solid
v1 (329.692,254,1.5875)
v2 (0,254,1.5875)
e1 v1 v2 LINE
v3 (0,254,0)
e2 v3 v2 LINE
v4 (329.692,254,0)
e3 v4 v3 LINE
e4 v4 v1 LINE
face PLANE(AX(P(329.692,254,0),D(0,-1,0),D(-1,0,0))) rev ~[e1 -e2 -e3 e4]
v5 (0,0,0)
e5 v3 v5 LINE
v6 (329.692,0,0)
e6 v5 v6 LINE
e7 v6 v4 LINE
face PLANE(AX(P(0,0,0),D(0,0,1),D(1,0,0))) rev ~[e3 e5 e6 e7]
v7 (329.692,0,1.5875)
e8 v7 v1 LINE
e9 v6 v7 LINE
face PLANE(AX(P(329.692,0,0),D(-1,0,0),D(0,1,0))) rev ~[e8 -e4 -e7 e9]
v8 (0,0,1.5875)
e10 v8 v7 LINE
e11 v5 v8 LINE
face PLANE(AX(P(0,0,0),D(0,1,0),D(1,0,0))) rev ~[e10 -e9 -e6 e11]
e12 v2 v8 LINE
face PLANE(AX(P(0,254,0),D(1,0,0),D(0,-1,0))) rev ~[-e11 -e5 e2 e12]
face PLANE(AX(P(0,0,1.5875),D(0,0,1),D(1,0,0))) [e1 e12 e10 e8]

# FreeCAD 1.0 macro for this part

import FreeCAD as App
import Part
import Sketcher
from FreeCAD import Vector
Q = App.Units.Quantity


def add_polygon(sketch, points):
    """Adds a closed chain of lines whose ends are joined by coincident constraints."""
    first, n = sketch.GeometryCount, len(points)
    for a, b in zip(points, points[1:] + points[:1]):
        sketch.addGeometry(Part.LineSegment(App.Vector(*a, 0), App.Vector(*b, 0)), False)
    for i in range(n):
        sketch.addConstraint(Sketcher.Constraint("Coincident", first + i, 2, first + (i + 1) % n, 1))

doc = App.newDocument("Part")
body = doc.addObject("PartDesign::Body", "Body")

# Sketch on XY plane
sketch1 = doc.addObject("Sketcher::SketchObject", "Sketch")
body.addObject(sketch1)
sketch1.AttachmentSupport = (doc.XY_Plane, [""])
sketch1.MapMode = "FlatFace"
add_polygon(sketch1, [(0, 254), (0, 0), (329.692, 0), (329.692, 254)])  # lines 0-3
sketch1.addConstraint(Sketcher.Constraint("Vertical", 0))
sketch1.addConstraint(Sketcher.Constraint("Horizontal", 1))
sketch1.addConstraint(Sketcher.Constraint("Vertical", 2))
sketch1.addConstraint(Sketcher.Constraint("Horizontal", 3))
sketch1.addConstraint(Sketcher.Constraint("Coincident", 0, 2, -1, 1))
sketch1.addConstraint(Sketcher.Constraint("DistanceY", 0, 2, 0, 1, Q("10 in")))
sketch1.addConstraint(Sketcher.Constraint("DistanceX", 1, 1, 1, 2, Q("12.98 in")))
pad1 = doc.addObject("PartDesign::Pad", "Pad")
body.addObject(pad1)
pad1.Profile = sketch1
pad1.Length = Q("0.0625 in")

doc.recompute()
